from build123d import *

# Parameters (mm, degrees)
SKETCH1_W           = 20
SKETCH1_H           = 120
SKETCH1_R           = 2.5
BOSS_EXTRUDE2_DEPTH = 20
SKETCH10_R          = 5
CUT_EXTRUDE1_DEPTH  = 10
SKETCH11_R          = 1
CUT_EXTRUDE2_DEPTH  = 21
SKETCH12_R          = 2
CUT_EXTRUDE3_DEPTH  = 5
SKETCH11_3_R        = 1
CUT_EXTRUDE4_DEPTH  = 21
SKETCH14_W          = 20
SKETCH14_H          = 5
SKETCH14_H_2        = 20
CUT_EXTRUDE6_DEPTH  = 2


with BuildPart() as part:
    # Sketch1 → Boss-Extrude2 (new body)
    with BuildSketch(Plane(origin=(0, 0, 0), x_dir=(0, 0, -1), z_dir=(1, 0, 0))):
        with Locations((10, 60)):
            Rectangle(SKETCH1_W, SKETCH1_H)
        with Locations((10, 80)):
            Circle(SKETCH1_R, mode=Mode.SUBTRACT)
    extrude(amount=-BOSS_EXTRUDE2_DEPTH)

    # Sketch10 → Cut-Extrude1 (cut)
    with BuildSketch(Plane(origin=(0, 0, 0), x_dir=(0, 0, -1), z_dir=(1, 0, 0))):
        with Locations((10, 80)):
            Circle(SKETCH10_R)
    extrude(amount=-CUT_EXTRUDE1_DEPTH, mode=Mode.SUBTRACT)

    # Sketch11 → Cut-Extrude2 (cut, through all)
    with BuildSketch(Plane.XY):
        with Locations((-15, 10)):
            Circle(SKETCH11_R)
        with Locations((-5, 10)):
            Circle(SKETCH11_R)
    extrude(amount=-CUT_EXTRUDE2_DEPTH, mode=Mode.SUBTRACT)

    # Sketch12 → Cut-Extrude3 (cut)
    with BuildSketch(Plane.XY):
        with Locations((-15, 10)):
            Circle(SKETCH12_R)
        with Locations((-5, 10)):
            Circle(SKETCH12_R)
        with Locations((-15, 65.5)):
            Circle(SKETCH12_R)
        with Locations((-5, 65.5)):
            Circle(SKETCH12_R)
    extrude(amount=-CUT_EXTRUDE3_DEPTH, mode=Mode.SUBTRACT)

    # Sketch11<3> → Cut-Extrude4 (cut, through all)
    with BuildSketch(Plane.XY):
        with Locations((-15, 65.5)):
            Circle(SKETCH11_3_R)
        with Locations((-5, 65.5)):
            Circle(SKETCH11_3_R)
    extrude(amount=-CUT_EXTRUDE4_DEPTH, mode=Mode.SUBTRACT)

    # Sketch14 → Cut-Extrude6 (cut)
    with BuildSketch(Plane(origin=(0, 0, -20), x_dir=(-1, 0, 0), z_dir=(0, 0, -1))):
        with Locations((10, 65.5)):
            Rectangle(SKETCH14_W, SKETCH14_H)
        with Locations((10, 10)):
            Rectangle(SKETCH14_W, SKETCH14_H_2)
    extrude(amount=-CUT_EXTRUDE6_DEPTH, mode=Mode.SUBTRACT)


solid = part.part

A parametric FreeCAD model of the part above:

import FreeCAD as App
import Part
import Sketcher

V = App.Vector
Q = App.Units.Quantity

doc = App.newDocument("Part")
body = doc.addObject("PartDesign::Body", "Body")

# Sketch on YZ plane
sketch1 = body.newObject("Sketcher::SketchObject", "Sketch")
sketch1.AttachmentSupport = (doc.getObject("YZ_Plane"), [""])
sketch1.MapMode = "FlatFace"
sketch1.addGeometry(Part.LineSegment(V(120, 0, 0), V(0, 0, 0)), False)
sketch1.addGeometry(Part.LineSegment(V(0, 0, 0), V(0, -20, 0)), False)
sketch1.addGeometry(Part.LineSegment(V(0, -20, 0), V(120, -20, 0)), False)
sketch1.addGeometry(Part.LineSegment(V(120, -20, 0), V(120, 0, 0)), False)
sketch1.addGeometry(Part.Circle(V(80, -10, 0), V(0, 0, 1), 2.5), False)
sketch1.addConstraint(Sketcher.Constraint("Coincident", 0, 2, 1, 1))
sketch1.addConstraint(Sketcher.Constraint("Coincident", 1, 2, 2, 1))
sketch1.addConstraint(Sketcher.Constraint("Coincident", 2, 2, 3, 1))
sketch1.addConstraint(Sketcher.Constraint("Coincident", 3, 2, 0, 1))
sketch1.addConstraint(Sketcher.Constraint("Horizontal", 0))
sketch1.addConstraint(Sketcher.Constraint("Vertical", 1))
sketch1.addConstraint(Sketcher.Constraint("Horizontal", 2))
sketch1.addConstraint(Sketcher.Constraint("Vertical", 3))
sketch1.addConstraint(Sketcher.Constraint("Coincident", 0, 2, -1, 1))
sketch1.addConstraint(Sketcher.Constraint("Diameter", 4, Q("5 mm")))
sketch1.addConstraint(Sketcher.Constraint("DistanceX", 0, 2, 0, 1, Q("120 mm")))
sketch1.addConstraint(Sketcher.Constraint("DistanceY", 1, 2, 1, 1, Q("20 mm")))
sketch1.addConstraint(Sketcher.Constraint("DistanceX", -1, 1, 4, 3, Q("80 mm")))
sketch1.addConstraint(Sketcher.Constraint("DistanceY", 4, 3, -1, 1, Q("10 mm")))
pad1 = body.newObject("PartDesign::Pad", "Pad")
pad1.Profile = sketch1
pad1.Length = 20
pad1.Reversed = True

# Sketch on YZ plane
sketch2 = body.newObject("Sketcher::SketchObject", "Sketch001")
sketch2.AttachmentSupport = (doc.getObject("YZ_Plane"), [""])
sketch2.MapMode = "FlatFace"
sketch2.addGeometry(Part.Circle(V(80, -10, 0), V(0, 0, 1), 5), False)
sketch2.addConstraint(Sketcher.Constraint("Diameter", 0, Q("10 mm")))
sketch2.addConstraint(Sketcher.Constraint("DistanceX", -1, 1, 0, 3, Q("80 mm")))
sketch2.addConstraint(Sketcher.Constraint("DistanceY", 0, 3, -1, 1, Q("10 mm")))
pocket1 = body.newObject("PartDesign::Pocket", "Pocket")
pocket1.Profile = sketch2
pocket1.Length = 10

# Sketch on XY plane
sketch3 = body.newObject("Sketcher::SketchObject", "Sketch002")
sketch3.AttachmentSupport = (doc.getObject("XY_Plane"), [""])
sketch3.MapMode = "FlatFace"
sketch3.addGeometry(Part.Circle(V(-15, 10, 0), V(0, 0, 1), 1), False)
sketch3.addGeometry(Part.Circle(V(-5, 10, 0), V(0, 0, 1), 1), False)
sketch3.addConstraint(Sketcher.Constraint("Equal", 0, 1))
sketch3.addConstraint(Sketcher.Constraint("Horizontal", 0, 3, 1, 3))
sketch3.addConstraint(Sketcher.Constraint("Diameter", 0, Q("2 mm")))
sketch3.addConstraint(Sketcher.Constraint("DistanceX", 0, 3, -1, 1, Q("15 mm")))
sketch3.addConstraint(Sketcher.Constraint("DistanceY", -1, 1, 0, 3, Q("10 mm")))
sketch3.addConstraint(Sketcher.Constraint("DistanceX", 1, 3, -1, 1, Q("5 mm")))
pocket2 = body.newObject("PartDesign::Pocket", "Pocket001")
pocket2.Profile = sketch3
pocket2.Type = "ThroughAll"

# Sketch on XY plane
sketch4 = body.newObject("Sketcher::SketchObject", "Sketch003")
sketch4.AttachmentSupport = (doc.getObject("XY_Plane"), [""])
sketch4.MapMode = "FlatFace"
sketch4.addGeometry(Part.Circle(V(-15, 10, 0), V(0, 0, 1), 2), False)
sketch4.addGeometry(Part.Circle(V(-5, 10, 0), V(0, 0, 1), 2), False)
sketch4.addGeometry(Part.Circle(V(-15, 65.5, 0), V(0, 0, 1), 2), False)
sketch4.addGeometry(Part.Circle(V(-5, 65.5, 0), V(0, 0, 1), 2), False)
sketch4.addConstraint(Sketcher.Constraint("Equal", 0, 1))
sketch4.addConstraint(Sketcher.Constraint("Equal", 1, 2))
sketch4.addConstraint(Sketcher.Constraint("Equal", 2, 3))
sketch4.addConstraint(Sketcher.Constraint("Horizontal", 0, 3, 1, 3))
sketch4.addConstraint(Sketcher.Constraint("Horizontal", 2, 3, 3, 3))
sketch4.addConstraint(Sketcher.Constraint("Vertical", 0, 3, 2, 3))
sketch4.addConstraint(Sketcher.Constraint("Vertical", 1, 3, 3, 3))
sketch4.addConstraint(Sketcher.Constraint("Diameter", 0, Q("4 mm")))
sketch4.addConstraint(Sketcher.Constraint("DistanceX", 0, 3, -1, 1, Q("15 mm")))
sketch4.addConstraint(Sketcher.Constraint("DistanceY", -1, 1, 0, 3, Q("10 mm")))
sketch4.addConstraint(Sketcher.Constraint("DistanceX", 1, 3, -1, 1, Q("5 mm")))
sketch4.addConstraint(Sketcher.Constraint("DistanceY", -1, 1, 2, 3, Q("65.5 mm")))
pocket3 = body.newObject("PartDesign::Pocket", "Pocket002")
pocket3.Profile = sketch4
pocket3.Length = 5

# Sketch on XY plane
sketch5 = body.newObject("Sketcher::SketchObject", "Sketch004")
sketch5.AttachmentSupport = (doc.getObject("XY_Plane"), [""])
sketch5.MapMode = "FlatFace"
sketch5.addGeometry(Part.Circle(V(-15, 65.5, 0), V(0, 0, 1), 1), False)
sketch5.addGeometry(Part.Circle(V(-5, 65.5, 0), V(0, 0, 1), 1), False)
sketch5.addConstraint(Sketcher.Constraint("Equal", 0, 1))
sketch5.addConstraint(Sketcher.Constraint("Horizontal", 0, 3, 1, 3))
sketch5.addConstraint(Sketcher.Constraint("Diameter", 0, Q("2 mm")))
sketch5.addConstraint(Sketcher.Constraint("DistanceX", 0, 3, -1, 1, Q("15 mm")))
sketch5.addConstraint(Sketcher.Constraint("DistanceX", 1, 3, -1, 1, Q("5 mm")))
sketch5.addConstraint(Sketcher.Constraint("DistanceY", -1, 1, 0, 3, Q("65.5 mm")))
pocket4 = body.newObject("PartDesign::Pocket", "Pocket003")
pocket4.Profile = sketch5
pocket4.Type = "ThroughAll"

# Sketch on XY plane
sketch6 = body.newObject("Sketcher::SketchObject", "Sketch005")
sketch6.AttachmentSupport = (doc.getObject("XY_Plane"), [""])
sketch6.MapMode = "FlatFace"
sketch6.AttachmentOffset = App.Placement(V(0, 0, -20), App.Rotation())
sketch6.addGeometry(Part.LineSegment(V(0, 68, 0), V(0, 63, 0)), False)
sketch6.addGeometry(Part.LineSegment(V(0, 63, 0), V(-20, 63, 0)), False)
sketch6.addGeometry(Part.LineSegment(V(-20, 63, 0), V(-20, 68, 0)), False)
sketch6.addGeometry(Part.LineSegment(V(-20, 68, 0), V(0, 68, 0)), False)
sketch6.addGeometry(Part.LineSegment(V(0, 20, 0), V(0, 0, 0)), False)
sketch6.addGeometry(Part.LineSegment(V(0, 0, 0), V(-20, 0, 0)), False)
sketch6.addGeometry(Part.LineSegment(V(-20, 0, 0), V(-20, 20, 0)), False)
sketch6.addGeometry(Part.LineSegment(V(-20, 20, 0), V(0, 20, 0)), False)
sketch6.addConstraint(Sketcher.Constraint("Coincident", 0, 2, 1, 1))
sketch6.addConstraint(Sketcher.Constraint("Coincident", 1, 2, 2, 1))
sketch6.addConstraint(Sketcher.Constraint("Coincident", 2, 2, 3, 1))
sketch6.addConstraint(Sketcher.Constraint("Coincident", 3, 2, 0, 1))
sketch6.addConstraint(Sketcher.Constraint("Coincident", 4, 2, 5, 1))
sketch6.addConstraint(Sketcher.Constraint("Coincident", 5, 2, 6, 1))
sketch6.addConstraint(Sketcher.Constraint("Coincident", 6, 2, 7, 1))
sketch6.addConstraint(Sketcher.Constraint("Coincident", 7, 2, 4, 1))
sketch6.addConstraint(Sketcher.Constraint("Vertical", 0))
sketch6.addConstraint(Sketcher.Constraint("Horizontal", 1))
sketch6.addConstraint(Sketcher.Constraint("Vertical", 2))
sketch6.addConstraint(Sketcher.Constraint("Horizontal", 3))
sketch6.addConstraint(Sketcher.Constraint("Vertical", 4))
sketch6.addConstraint(Sketcher.Constraint("Horizontal", 5))
sketch6.addConstraint(Sketcher.Constraint("Vertical", 6))
sketch6.addConstraint(Sketcher.Constraint("Horizontal", 7))
sketch6.addConstraint(Sketcher.Constraint("Coincident", 4, 2, -1, 1))
sketch6.addConstraint(Sketcher.Constraint("PointOnObject", 0, 2, -2))
sketch6.addConstraint(Sketcher.Constraint("Vertical", 2, 2, 5, 2))
sketch6.addConstraint(Sketcher.Constraint("Equal", 7, 4))
sketch6.addConstraint(Sketcher.Constraint("DistanceX", 1, 2, 1, 1, Q("20 mm")))
sketch6.addConstraint(Sketcher.Constraint("DistanceY", 0, 2, 0, 1, Q("5 mm")))
sketch6.addConstraint(Sketcher.Constraint("DistanceY", -1, 1, 0, 2, Q("63 mm")))
pocket5 = body.newObject("PartDesign::Pocket", "Pocket004")
pocket5.Profile = sketch6
pocket5.Length = 2
pocket5.Reversed = True

doc.recompute()
